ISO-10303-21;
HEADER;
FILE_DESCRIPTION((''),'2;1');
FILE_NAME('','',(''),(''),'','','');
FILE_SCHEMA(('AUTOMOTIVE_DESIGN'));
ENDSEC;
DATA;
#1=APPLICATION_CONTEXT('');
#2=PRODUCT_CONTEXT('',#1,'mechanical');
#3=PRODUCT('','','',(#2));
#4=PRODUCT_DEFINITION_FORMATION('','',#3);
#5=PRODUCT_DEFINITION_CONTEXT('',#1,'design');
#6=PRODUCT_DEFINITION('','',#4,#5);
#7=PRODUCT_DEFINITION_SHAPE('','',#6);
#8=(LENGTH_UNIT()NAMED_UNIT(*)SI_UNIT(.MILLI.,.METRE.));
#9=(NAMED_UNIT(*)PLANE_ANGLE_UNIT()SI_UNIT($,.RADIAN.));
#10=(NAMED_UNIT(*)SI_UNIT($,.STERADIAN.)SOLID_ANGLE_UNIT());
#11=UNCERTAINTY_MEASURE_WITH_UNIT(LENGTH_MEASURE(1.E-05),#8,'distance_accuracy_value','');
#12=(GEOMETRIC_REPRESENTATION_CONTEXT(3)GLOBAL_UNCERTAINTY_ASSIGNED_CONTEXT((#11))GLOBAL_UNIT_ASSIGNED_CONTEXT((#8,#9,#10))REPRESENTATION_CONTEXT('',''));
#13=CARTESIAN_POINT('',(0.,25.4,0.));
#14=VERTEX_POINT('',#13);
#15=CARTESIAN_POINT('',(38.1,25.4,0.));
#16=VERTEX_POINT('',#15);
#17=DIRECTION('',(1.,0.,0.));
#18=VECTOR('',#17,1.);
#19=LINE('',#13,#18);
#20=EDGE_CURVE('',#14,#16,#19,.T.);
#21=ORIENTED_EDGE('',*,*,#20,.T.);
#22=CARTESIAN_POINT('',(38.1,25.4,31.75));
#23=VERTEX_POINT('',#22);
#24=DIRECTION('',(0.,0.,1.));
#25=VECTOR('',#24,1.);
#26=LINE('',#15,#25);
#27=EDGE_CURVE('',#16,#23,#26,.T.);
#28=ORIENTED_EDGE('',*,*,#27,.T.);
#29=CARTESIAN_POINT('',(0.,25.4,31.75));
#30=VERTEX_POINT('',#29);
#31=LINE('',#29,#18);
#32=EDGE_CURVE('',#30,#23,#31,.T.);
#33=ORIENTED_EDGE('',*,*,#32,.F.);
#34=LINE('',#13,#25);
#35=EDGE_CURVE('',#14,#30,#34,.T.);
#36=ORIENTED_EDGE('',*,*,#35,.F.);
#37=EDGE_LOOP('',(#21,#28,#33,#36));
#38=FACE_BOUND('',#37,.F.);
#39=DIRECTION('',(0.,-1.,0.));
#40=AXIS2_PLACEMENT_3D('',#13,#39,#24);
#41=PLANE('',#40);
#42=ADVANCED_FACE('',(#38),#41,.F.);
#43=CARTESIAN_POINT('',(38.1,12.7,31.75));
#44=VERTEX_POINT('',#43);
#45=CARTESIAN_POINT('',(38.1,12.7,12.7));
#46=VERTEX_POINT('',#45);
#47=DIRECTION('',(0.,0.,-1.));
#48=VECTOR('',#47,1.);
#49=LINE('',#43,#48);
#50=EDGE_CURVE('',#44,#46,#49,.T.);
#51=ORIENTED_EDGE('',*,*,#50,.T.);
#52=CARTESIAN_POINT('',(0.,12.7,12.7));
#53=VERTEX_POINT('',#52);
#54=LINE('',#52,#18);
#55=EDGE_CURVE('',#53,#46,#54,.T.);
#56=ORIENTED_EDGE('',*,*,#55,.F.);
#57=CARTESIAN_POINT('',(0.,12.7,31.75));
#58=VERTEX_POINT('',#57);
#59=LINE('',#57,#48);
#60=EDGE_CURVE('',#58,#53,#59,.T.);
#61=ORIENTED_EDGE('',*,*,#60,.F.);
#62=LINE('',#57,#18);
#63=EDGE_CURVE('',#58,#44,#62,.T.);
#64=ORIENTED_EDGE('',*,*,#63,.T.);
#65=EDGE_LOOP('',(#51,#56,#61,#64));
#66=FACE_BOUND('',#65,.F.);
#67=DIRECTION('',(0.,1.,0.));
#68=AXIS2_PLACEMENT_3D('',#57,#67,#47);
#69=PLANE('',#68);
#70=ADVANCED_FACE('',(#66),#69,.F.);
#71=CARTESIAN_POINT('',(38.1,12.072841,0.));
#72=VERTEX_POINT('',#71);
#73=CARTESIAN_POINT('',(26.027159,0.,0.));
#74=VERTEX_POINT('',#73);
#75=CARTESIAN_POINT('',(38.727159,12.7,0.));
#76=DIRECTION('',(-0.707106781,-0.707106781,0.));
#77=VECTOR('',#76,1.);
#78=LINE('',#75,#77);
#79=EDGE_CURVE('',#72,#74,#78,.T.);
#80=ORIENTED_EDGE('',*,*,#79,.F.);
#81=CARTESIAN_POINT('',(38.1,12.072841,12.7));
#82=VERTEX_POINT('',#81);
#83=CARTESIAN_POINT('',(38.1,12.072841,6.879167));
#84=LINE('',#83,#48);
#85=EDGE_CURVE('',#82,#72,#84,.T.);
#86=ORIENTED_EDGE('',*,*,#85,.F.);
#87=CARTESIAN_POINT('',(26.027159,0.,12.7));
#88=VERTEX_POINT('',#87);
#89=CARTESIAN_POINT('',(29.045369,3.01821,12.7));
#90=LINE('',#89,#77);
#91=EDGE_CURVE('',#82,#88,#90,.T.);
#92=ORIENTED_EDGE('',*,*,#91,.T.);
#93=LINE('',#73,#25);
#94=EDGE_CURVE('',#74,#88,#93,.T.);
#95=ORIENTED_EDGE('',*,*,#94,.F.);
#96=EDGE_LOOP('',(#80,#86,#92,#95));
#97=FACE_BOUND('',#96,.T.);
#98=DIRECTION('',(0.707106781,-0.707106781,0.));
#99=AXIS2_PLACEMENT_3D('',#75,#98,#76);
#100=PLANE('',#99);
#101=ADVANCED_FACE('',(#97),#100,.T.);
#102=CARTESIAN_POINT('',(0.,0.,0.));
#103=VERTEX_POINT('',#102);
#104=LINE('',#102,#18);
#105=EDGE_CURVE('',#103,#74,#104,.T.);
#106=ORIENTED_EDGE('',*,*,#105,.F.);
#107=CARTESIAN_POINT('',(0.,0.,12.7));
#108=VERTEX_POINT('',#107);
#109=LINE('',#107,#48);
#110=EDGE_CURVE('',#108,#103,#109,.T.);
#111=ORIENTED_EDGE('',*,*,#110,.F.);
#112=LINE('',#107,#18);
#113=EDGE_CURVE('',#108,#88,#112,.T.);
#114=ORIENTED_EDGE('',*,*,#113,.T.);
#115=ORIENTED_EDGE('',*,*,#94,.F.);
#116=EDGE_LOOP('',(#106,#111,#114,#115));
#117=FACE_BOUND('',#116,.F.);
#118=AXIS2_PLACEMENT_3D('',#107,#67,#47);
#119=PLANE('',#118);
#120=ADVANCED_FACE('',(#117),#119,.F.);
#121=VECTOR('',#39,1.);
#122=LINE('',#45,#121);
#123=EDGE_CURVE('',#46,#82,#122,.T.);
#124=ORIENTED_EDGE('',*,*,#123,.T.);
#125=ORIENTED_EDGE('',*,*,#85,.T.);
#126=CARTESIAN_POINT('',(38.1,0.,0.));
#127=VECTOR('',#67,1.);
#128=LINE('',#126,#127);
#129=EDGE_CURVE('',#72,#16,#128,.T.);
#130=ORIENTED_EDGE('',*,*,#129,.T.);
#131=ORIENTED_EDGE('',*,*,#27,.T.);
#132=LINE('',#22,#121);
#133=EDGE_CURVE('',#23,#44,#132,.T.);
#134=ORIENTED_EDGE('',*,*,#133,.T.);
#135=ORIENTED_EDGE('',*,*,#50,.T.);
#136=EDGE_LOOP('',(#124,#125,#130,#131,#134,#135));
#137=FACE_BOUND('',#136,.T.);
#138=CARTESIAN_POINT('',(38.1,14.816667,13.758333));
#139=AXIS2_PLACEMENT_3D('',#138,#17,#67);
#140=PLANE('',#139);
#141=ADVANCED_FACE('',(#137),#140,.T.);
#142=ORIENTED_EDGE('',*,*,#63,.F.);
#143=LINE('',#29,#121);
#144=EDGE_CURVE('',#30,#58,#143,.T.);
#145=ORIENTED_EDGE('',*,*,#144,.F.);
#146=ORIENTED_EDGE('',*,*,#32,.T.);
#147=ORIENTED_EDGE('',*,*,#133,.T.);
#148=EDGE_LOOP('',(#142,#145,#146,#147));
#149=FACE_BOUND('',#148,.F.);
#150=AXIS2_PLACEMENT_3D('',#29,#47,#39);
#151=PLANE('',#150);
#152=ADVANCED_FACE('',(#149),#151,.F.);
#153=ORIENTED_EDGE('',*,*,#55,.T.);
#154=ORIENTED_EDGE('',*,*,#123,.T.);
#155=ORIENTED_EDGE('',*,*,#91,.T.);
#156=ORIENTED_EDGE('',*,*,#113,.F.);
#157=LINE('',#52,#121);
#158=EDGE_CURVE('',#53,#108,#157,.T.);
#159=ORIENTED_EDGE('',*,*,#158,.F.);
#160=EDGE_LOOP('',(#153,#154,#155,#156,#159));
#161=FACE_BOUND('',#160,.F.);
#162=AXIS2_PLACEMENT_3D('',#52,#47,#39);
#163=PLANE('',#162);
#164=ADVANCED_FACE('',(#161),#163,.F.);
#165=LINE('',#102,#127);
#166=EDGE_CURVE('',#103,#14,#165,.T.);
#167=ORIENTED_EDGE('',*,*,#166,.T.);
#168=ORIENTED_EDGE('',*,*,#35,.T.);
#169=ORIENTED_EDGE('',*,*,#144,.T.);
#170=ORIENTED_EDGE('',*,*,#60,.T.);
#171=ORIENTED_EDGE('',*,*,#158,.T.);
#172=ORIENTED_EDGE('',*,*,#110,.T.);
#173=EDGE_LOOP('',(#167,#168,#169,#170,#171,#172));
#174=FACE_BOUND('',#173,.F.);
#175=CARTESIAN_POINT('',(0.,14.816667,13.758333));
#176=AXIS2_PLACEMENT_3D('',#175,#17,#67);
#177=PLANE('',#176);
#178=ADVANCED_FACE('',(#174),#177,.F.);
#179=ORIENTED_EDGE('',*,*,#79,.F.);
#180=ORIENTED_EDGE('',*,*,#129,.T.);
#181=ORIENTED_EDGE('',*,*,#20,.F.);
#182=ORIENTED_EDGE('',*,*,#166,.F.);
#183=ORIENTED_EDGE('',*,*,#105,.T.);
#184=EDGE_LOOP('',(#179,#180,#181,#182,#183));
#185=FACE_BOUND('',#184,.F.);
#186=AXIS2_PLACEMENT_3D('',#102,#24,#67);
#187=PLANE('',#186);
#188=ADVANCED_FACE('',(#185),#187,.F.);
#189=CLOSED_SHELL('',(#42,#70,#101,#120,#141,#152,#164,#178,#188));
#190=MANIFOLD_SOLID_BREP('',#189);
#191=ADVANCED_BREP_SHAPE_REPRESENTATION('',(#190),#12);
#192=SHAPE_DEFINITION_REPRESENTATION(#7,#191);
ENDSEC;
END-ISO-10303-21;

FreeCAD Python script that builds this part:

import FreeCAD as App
import Part
import Sketcher

V = App.Vector
Q = App.Units.Quantity


def add_polygon(sketch, points):
    """Adds a closed chain of lines whose ends are joined by coincident constraints."""
    first, n = sketch.GeometryCount, len(points)
    for a, b in zip(points, points[1:] + points[:1]):
        sketch.addGeometry(Part.LineSegment(App.Vector(*a, 0), App.Vector(*b, 0)), False)
    for i in range(n):
        sketch.addConstraint(Sketcher.Constraint("Coincident", first + i, 2, first + (i + 1) % n, 1))

doc = App.newDocument("Part")
params = doc.addObject("Spreadsheet::Sheet", "Params")
for row, (alias, value) in enumerate([
    ("sketch1_width", "1 in"),
    ("sketch1_height", "1.25 in"),
    ("pad1_length", "1.5 in"),
    ("sketch2_width", "0.5 in"),
    ("pocket1_length", "1 in"),
], start=1):
    params.set(f"A{row}", alias)
    params.set(f"B{row}", "=" + value)
    params.setAlias(f"B{row}", alias)

body = doc.addObject("PartDesign::Body", "Body")

sketch1 = doc.addObject("Sketcher::SketchObject", "Sketch")
body.addObject(sketch1)
sketch1.AttachmentSupport = (doc.YZ_Plane, [""])
sketch1.MapMode = "FlatFace"
add_polygon(sketch1, [(0, 13), (0, 0), (25, 0), (25, 32), (13, 32), (13, 13)])
sketch1.addConstraint([
    Sketcher.Constraint("Vertical", 0),
    Sketcher.Constraint("Horizontal", 1),
    Sketcher.Constraint("Vertical", 2),
    Sketcher.Constraint("Horizontal", 3),
    Sketcher.Constraint("Vertical", 4),
    Sketcher.Constraint("Horizontal", 5),
    Sketcher.Constraint("Coincident", 0, 2, -1, 1),
    Sketcher.Constraint("Equal", 3, 5),
    Sketcher.Constraint("Equal", 5, 0),
    Sketcher.Constraint("DistanceX", 1, 1, 1, 2, Q("1 in")),
    Sketcher.Constraint("DistanceY", 2, 1, 2, 2, Q("1.25 in")),
])
sketch1.setExpression("Constraints[15]", "Params.sketch1_width")
sketch1.setExpression("Constraints[16]", "Params.sketch1_height")
pad1 = doc.addObject("PartDesign::Pad", "Pad")
body.addObject(pad1)
pad1.Profile = sketch1
pad1.setExpression("Length", "Params.pad1_length")

sketch2 = doc.addObject("Sketcher::SketchObject", "Sketch001")
body.addObject(sketch2)
sketch2.AttachmentSupport = (doc.XY_Plane, [""])
sketch2.MapMode = "FlatFace"
add_polygon(sketch2, [(26, 0), (39, 0), (39, 13)])
sketch2.addConstraint([
    Sketcher.Constraint("Horizontal", 0),
    Sketcher.Constraint("Vertical", 1),
    Sketcher.Constraint("PointOnObject", 0, 2, -1),
    Sketcher.Constraint("Equal", 0, 1),
    Sketcher.Constraint("DistanceX", 0, 1, 0, 2, Q("0.5 in")),
    Sketcher.Constraint("DistanceX", -1, 1, 0, 2, 38.727159),
])
sketch2.setExpression("Constraints[7]", "Params.sketch2_width")
pocket1 = doc.addObject("PartDesign::Pocket", "Pocket")
body.addObject(pocket1)
pocket1.Profile = sketch2
pocket1.setExpression("Length", "Params.pocket1_length")
pocket1.Reversed = True

doc.recompute()
